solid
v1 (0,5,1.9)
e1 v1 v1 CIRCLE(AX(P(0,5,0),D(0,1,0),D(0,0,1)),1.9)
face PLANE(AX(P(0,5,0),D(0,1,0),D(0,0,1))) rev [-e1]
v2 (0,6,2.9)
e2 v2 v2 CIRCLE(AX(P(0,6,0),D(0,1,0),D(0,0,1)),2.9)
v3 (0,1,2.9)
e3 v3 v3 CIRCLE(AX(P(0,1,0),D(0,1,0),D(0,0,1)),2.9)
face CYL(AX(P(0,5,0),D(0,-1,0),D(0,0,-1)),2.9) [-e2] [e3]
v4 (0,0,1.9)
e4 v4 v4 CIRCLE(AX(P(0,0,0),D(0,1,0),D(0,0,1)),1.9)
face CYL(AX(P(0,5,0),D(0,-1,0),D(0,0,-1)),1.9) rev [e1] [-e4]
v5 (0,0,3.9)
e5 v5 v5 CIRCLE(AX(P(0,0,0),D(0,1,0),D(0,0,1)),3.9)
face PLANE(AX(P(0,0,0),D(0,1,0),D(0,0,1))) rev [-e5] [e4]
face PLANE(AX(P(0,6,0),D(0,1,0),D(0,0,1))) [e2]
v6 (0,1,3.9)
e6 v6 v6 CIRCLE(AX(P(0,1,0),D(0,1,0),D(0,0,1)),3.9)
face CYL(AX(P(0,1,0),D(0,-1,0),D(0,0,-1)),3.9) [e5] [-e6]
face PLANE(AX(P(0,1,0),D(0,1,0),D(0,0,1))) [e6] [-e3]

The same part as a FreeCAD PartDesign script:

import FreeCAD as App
import Part
import Sketcher

doc = App.newDocument("Part")
body = doc.addObject("PartDesign::Body", "Body")

sketch1 = body.newObject("Sketcher::SketchObject", "Sketch")
sketch1.AttachmentSupport = (doc.getObject("XZ_Plane"), [""])
sketch1.MapMode = "FlatFace"
sketch1.addGeometry(Part.Circle(App.Vector(0, 0, 0), App.Vector(0, 0, 1), 2.9), False)
sketch1.addGeometry(Part.Circle(App.Vector(0, 0, 0), App.Vector(0, 0, 1), 1.9), False)
sketch1.addConstraint(Sketcher.Constraint("Coincident", 0, 3, -1, 1))
sketch1.addConstraint(Sketcher.Constraint("Coincident", 1, 3, -1, 1))
sketch1.addConstraint(Sketcher.Constraint("Diameter", 0, 5.8))
sketch1.addConstraint(Sketcher.Constraint("Diameter", 1, 3.8))
pad1 = body.newObject("PartDesign::Pad", "Pad")
pad1.Profile = sketch1
pad1.Length = 5
pad1.Reversed = True

sketch2 = body.newObject("Sketcher::SketchObject", "Sketch001")
sketch2.AttachmentSupport = (doc.getObject("XZ_Plane"), [""])
sketch2.MapMode = "FlatFace"
sketch2.AttachmentOffset = App.Placement(App.Vector(0, 0, -5), App.Rotation())
sketch2.addGeometry(Part.Circle(App.Vector(0, 0, 0), App.Vector(0, 0, 1), 2.9), False)
sketch2.addConstraint(Sketcher.Constraint("Coincident", 0, 3, -1, 1))
sketch2.addConstraint(Sketcher.Constraint("Diameter", 0, 5.8))
pad2 = body.newObject("PartDesign::Pad", "Pad001")
pad2.Profile = sketch2
pad2.Length = 1
pad2.Reversed = True

sketch3 = body.newObject("Sketcher::SketchObject", "Sketch002")
sketch3.AttachmentSupport = (doc.getObject("XZ_Plane"), [""])
sketch3.MapMode = "FlatFace"
sketch3.addGeometry(Part.Circle(App.Vector(0, 0, 0), App.Vector(0, 0, 1), 3.9), False)
sketch3.addGeometry(Part.Circle(App.Vector(0, 0, 0), App.Vector(0, 0, 1), 1.9), False)
sketch3.addConstraint(Sketcher.Constraint("Coincident", 0, 3, -1, 1))
sketch3.addConstraint(Sketcher.Constraint("Coincident", 1, 3, -1, 1))
sketch3.addConstraint(Sketcher.Constraint("Diameter", 0, 7.8))
sketch3.addConstraint(Sketcher.Constraint("Diameter", 1, 3.8))
pad3 = body.newObject("PartDesign::Pad", "Pad002")
pad3.Profile = sketch3
pad3.Length = 1
pad3.Reversed = True

doc.recompute()
